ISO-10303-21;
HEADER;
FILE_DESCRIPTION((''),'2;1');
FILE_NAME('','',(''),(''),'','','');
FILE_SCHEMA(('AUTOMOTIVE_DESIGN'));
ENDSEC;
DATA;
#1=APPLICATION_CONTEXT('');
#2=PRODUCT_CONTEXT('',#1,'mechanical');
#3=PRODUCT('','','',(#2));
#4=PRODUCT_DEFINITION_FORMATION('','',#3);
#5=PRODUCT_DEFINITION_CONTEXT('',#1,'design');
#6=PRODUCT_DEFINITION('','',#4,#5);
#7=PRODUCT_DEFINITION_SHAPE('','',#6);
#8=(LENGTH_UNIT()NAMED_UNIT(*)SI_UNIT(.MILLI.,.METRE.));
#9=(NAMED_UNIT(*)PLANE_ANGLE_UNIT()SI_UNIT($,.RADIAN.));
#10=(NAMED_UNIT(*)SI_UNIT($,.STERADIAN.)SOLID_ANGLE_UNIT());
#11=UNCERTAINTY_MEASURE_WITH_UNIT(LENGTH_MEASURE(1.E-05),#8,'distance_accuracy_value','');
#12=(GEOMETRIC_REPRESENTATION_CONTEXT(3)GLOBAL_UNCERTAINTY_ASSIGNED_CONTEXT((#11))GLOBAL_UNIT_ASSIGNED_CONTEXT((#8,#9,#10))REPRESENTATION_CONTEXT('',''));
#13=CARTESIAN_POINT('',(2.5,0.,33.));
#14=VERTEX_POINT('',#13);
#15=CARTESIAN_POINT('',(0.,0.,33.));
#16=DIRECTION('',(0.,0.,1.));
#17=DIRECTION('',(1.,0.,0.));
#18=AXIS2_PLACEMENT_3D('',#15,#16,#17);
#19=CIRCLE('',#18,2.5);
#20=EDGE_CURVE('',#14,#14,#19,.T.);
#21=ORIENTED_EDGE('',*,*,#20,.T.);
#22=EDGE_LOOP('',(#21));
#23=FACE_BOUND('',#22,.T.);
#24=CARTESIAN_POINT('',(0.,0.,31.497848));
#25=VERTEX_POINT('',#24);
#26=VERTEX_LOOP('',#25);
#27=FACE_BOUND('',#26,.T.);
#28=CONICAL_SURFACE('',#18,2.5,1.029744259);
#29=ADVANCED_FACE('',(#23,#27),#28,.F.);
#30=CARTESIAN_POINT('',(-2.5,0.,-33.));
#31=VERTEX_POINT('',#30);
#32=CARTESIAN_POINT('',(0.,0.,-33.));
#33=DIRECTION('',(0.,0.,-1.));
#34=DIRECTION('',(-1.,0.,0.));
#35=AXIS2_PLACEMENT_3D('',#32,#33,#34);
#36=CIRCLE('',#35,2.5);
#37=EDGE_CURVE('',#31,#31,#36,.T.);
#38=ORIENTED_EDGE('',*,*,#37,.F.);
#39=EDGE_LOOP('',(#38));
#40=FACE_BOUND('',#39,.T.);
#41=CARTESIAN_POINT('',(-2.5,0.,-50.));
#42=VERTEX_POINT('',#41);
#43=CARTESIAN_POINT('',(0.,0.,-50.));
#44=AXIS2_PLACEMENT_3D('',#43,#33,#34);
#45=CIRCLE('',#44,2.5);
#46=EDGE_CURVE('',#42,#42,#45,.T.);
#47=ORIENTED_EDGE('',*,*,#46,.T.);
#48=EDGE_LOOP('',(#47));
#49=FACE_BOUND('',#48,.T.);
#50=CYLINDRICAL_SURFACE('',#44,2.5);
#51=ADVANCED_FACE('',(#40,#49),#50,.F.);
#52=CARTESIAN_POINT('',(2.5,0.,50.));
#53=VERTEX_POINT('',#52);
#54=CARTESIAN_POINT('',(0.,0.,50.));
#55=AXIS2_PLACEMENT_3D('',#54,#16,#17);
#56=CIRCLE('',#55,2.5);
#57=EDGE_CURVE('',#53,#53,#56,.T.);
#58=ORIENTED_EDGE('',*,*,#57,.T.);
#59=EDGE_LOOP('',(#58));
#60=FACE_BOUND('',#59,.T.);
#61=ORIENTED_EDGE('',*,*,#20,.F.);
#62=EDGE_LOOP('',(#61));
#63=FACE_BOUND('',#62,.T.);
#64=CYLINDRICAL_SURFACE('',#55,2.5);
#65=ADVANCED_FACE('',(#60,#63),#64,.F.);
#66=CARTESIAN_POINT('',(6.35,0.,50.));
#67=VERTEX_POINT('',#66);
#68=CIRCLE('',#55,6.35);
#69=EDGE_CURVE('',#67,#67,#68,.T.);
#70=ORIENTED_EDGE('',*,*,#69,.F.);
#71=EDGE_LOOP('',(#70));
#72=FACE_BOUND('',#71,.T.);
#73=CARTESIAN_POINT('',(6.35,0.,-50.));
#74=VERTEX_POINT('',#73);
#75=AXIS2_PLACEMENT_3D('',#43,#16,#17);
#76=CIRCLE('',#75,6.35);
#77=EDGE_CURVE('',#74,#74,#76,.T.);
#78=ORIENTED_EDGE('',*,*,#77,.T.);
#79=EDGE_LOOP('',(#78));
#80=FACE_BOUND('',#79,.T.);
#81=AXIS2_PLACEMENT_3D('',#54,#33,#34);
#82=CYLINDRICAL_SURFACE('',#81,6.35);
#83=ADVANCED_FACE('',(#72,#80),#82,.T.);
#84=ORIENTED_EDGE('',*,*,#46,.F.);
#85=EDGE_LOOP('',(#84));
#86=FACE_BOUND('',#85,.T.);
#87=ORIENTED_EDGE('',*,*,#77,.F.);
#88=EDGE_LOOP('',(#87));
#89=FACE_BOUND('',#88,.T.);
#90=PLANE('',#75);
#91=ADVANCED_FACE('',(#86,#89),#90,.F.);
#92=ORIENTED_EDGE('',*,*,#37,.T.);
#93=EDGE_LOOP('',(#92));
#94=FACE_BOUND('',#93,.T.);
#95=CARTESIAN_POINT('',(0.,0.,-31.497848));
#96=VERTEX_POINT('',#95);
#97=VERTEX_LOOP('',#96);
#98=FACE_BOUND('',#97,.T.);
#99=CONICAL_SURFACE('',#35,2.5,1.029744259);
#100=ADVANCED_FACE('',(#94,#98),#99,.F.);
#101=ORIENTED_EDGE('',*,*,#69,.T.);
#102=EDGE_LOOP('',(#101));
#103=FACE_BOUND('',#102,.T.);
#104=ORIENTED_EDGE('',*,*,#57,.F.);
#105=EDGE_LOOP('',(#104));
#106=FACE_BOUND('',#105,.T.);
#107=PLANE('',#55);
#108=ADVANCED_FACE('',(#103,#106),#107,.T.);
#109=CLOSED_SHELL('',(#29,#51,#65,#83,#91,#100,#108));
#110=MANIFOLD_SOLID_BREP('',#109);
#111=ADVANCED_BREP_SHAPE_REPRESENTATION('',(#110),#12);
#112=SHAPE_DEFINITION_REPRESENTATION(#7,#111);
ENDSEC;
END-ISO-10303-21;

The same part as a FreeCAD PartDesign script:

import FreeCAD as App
import Part
import Sketcher

V = App.Vector
Q = App.Units.Quantity

doc = App.newDocument("Part")
params = doc.addObject("Spreadsheet::Sheet", "Params")
for row, (alias, value) in enumerate([
    ("sketch1_diameter", "12.7 mm"),
    ("pad1_length", "100 mm"),
    ("sketch2_height", "17 mm"),
    ("sketch2_width", "2.5 mm"),
    ("groove_angle", "360 deg"),
], start=1):
    params.set(f"A{row}", alias)
    params.set(f"B{row}", "=" + value)
    params.setAlias(f"B{row}", alias)

body = doc.addObject("PartDesign::Body", "Body")

sketch1 = body.newObject("Sketcher::SketchObject", "Sketch")
sketch1.AttachmentSupport = (doc.getObject("XY_Plane"), [""])
sketch1.MapMode = "FlatFace"
sketch1.addGeometry(Part.Circle(V(0, 0, 0), V(0, 0, 1), 6), False)
sketch1.addConstraint(Sketcher.Constraint("Coincident", 0, 3, -1, 1))
sketch1.addConstraint(Sketcher.Constraint("Diameter", 0, 12.7))
sketch1.setExpression("Constraints[1]", "Params.sketch1_diameter")
pad1 = body.newObject("PartDesign::Pad", "Pad")
pad1.Profile = sketch1
pad1.setExpression("Length", "Params.pad1_length")
pad1.Midplane = True

sketch2 = body.newObject("Sketcher::SketchObject", "Sketch001")
sketch2.AttachmentSupport = (doc.getObject("YZ_Plane"), [""])
sketch2.MapMode = "FlatFace"
sketch2.addGeometry(Part.LineSegment(V(0, 31.5, 0), V(0, 50, 0)), False)
sketch2.addGeometry(Part.LineSegment(V(0, 50, 0), V(-2.5, 50, 0)), False)
sketch2.addGeometry(Part.LineSegment(V(-2.5, 50, 0), V(-2.5, 33, 0)), False)
sketch2.addGeometry(Part.LineSegment(V(-2.5, 33, 0), V(0, 31.5, 0)), False)
sketch2.addConstraint(Sketcher.Constraint("Coincident", 0, 2, 1, 1))
sketch2.addConstraint(Sketcher.Constraint("Coincident", 1, 2, 2, 1))
sketch2.addConstraint(Sketcher.Constraint("Coincident", 2, 2, 3, 1))
sketch2.addConstraint(Sketcher.Constraint("Coincident", 3, 2, 0, 1))
sketch2.addConstraint(Sketcher.Constraint("Vertical", 0))
sketch2.addConstraint(Sketcher.Constraint("Horizontal", 1))
sketch2.addConstraint(Sketcher.Constraint("Vertical", 2))
sketch2.addConstraint(Sketcher.Constraint("PointOnObject", 0, 2, -2))
sketch2.addConstraint(Sketcher.Constraint("DistanceY", 2, 2, 2, 1, 17.0))
sketch2.addConstraint(Sketcher.Constraint("Angle", 3, Q("-31 deg")))
sketch2.addConstraint(Sketcher.Constraint("DistanceX", 1, 2, 1, 1, 2.5))
sketch2.addConstraint(Sketcher.Constraint("DistanceY", -1, 1, 0, 2, 50.0))
sketch2.setExpression("Constraints[8]", "Params.sketch2_height")
sketch2.setExpression("Constraints[10]", "Params.sketch2_width")
groove = body.newObject("PartDesign::Groove", "Groove")
groove.Profile = sketch2
groove.ReferenceAxis = (sketch2, ["V_Axis"])
groove.setExpression("Angle", "Params.groove_angle")
doc.recompute()

mirrored = body.newObject("PartDesign::Mirrored", "Mirrored")
mirrored.Originals = [groove]
mirrored.MirrorPlane = (doc.getObject("XY_Plane"), [""])
body.Tip = mirrored

doc.recompute()
